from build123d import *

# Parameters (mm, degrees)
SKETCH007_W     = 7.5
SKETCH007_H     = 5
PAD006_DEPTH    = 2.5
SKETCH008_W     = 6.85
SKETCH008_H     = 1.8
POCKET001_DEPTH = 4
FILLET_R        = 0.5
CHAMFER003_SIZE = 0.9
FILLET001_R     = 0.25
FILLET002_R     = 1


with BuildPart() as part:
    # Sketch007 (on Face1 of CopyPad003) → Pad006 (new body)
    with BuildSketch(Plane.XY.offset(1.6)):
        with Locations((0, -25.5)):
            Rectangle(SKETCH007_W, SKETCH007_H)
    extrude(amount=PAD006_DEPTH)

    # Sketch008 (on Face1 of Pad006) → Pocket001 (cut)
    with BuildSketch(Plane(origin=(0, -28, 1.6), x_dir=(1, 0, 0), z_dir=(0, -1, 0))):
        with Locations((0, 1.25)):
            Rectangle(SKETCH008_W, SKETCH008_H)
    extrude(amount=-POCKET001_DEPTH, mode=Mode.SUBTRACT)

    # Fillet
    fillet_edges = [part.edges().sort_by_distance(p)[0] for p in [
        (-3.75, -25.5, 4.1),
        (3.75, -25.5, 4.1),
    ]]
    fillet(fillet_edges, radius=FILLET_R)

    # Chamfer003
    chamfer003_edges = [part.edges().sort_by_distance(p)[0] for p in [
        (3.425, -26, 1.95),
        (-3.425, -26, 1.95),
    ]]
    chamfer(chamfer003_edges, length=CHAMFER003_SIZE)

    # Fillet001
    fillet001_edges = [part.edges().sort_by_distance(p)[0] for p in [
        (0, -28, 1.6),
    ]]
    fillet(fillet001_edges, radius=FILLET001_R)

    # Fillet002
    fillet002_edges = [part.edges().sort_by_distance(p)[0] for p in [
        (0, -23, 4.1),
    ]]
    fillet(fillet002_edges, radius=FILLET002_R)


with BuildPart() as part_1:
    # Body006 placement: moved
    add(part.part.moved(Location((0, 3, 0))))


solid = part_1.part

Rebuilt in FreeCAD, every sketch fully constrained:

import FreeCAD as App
import Part
import Sketcher

V = App.Vector


def edges_at(feature, points):
    """Names of the edges that pass closest to the given points."""
    edges = feature.Shape.Edges
    near = lambda p: min(range(len(edges)), key=lambda i: edges[i].distToShape(Part.Vertex(*p))[0])
    return sorted({f"Edge{near(p) + 1}" for p in points})

doc = App.newDocument("Part")
body = doc.addObject("PartDesign::Body", "Body")

sketch1 = body.newObject("Sketcher::SketchObject", "Sketch")
sketch1.AttachmentSupport = (doc.getObject("XY_Plane"), [""])
sketch1.MapMode = "FlatFace"
sketch1.AttachmentOffset = App.Placement(V(0, 0, 1.6), App.Rotation())
sketch1.addGeometry([
    Part.LineSegment(V(-4, -23, 0), V(-4, -28, 0)),
    Part.LineSegment(V(-4, -28, 0), V(4, -28, 0)),
    Part.LineSegment(V(4, -28, 0), V(4, -23, 0)),
    Part.LineSegment(V(4, -23, 0), V(-4, -23, 0)),
], False)
sketch1.addConstraint([
    Sketcher.Constraint("Coincident", 0, 2, 1, 1),
    Sketcher.Constraint("Coincident", 1, 2, 2, 1),
    Sketcher.Constraint("Coincident", 2, 2, 3, 1),
    Sketcher.Constraint("Coincident", 3, 2, 0, 1),
    Sketcher.Constraint("Vertical", 0),
    Sketcher.Constraint("Horizontal", 1),
    Sketcher.Constraint("Vertical", 2),
    Sketcher.Constraint("Horizontal", 3),
    Sketcher.Constraint("DistanceY", 0, 2, 0, 1, 5.0),
    Sketcher.Constraint("DistanceX", 1, 1, 1, 2, 7.5),
    Sketcher.Constraint("DistanceY", 0, 2, -1, 1, 28.0),
    Sketcher.Constraint("DistanceX", 0, 2, -1, 1, 3.75),
])
pad1 = body.newObject("PartDesign::Pad", "Pad")
pad1.Profile = sketch1
pad1.Length = 2.5

sketch2 = body.newObject("Sketcher::SketchObject", "Sketch001")
sketch2.AttachmentSupport = (doc.getObject("XZ_Plane"), [""])
sketch2.MapMode = "FlatFace"
sketch2.AttachmentOffset = App.Placement(V(0, 0, 28), App.Rotation())
sketch2.addGeometry([
    Part.LineSegment(V(-3.4, 3.8, 0), V(-3.4, 1.9, 0)),
    Part.LineSegment(V(-3.4, 1.9, 0), V(3.4, 1.9, 0)),
    Part.LineSegment(V(3.4, 1.9, 0), V(3.4, 3.8, 0)),
    Part.LineSegment(V(3.4, 3.8, 0), V(-3.4, 3.8, 0)),
], False)
sketch2.addConstraint([
    Sketcher.Constraint("Coincident", 0, 2, 1, 1),
    Sketcher.Constraint("Coincident", 1, 2, 2, 1),
    Sketcher.Constraint("Coincident", 2, 2, 3, 1),
    Sketcher.Constraint("Coincident", 3, 2, 0, 1),
    Sketcher.Constraint("Vertical", 0),
    Sketcher.Constraint("Horizontal", 1),
    Sketcher.Constraint("Vertical", 2),
    Sketcher.Constraint("Horizontal", 3),
    Sketcher.Constraint("DistanceY", 0, 2, 0, 1, 1.8),
    Sketcher.Constraint("DistanceX", 1, 1, 1, 2, 6.85),
    Sketcher.Constraint("DistanceY", -1, 1, 0, 2, 1.95),
    Sketcher.Constraint("DistanceX", 0, 2, -1, 1, 3.425),
])
pocket1 = body.newObject("PartDesign::Pocket", "Pocket")
pocket1.Profile = sketch2
pocket1.Length = 4
doc.recompute()

fillet = body.newObject("PartDesign::Fillet", "Fillet")
fillet.Base = (pocket1, edges_at(pocket1, [(-3.75, -25.5, 4.1), (3.75, -25.5, 4.1)]))
fillet.Radius = 0.5
doc.recompute()

chamfer = body.newObject("PartDesign::Chamfer", "Chamfer")
chamfer.Base = (fillet, edges_at(fillet, [(3.425, -26, 1.95), (-3.425, -26, 1.95)]))
chamfer.Size = 0.9
doc.recompute()

fillet2 = body.newObject("PartDesign::Fillet", "Fillet001")
fillet2.Base = (chamfer, edges_at(chamfer, [(0, -28, 1.6)]))
fillet2.Radius = 0.25
doc.recompute()

fillet3 = body.newObject("PartDesign::Fillet", "Fillet002")
fillet3.Base = (fillet2, edges_at(fillet2, [(0, -23, 4.1)]))
fillet3.Radius = 1
body2 = doc.addObject("PartDesign::Body", "Body001")
doc.recompute()

body.Placement = App.Placement(V(0, 3, 0), App.Rotation(V(0, 0, 1), 0))
boolean = body2.newObject("PartDesign::Boolean", "Boolean")
boolean.Type = "Fuse"
boolean.addObjects([body])

doc.recompute()
